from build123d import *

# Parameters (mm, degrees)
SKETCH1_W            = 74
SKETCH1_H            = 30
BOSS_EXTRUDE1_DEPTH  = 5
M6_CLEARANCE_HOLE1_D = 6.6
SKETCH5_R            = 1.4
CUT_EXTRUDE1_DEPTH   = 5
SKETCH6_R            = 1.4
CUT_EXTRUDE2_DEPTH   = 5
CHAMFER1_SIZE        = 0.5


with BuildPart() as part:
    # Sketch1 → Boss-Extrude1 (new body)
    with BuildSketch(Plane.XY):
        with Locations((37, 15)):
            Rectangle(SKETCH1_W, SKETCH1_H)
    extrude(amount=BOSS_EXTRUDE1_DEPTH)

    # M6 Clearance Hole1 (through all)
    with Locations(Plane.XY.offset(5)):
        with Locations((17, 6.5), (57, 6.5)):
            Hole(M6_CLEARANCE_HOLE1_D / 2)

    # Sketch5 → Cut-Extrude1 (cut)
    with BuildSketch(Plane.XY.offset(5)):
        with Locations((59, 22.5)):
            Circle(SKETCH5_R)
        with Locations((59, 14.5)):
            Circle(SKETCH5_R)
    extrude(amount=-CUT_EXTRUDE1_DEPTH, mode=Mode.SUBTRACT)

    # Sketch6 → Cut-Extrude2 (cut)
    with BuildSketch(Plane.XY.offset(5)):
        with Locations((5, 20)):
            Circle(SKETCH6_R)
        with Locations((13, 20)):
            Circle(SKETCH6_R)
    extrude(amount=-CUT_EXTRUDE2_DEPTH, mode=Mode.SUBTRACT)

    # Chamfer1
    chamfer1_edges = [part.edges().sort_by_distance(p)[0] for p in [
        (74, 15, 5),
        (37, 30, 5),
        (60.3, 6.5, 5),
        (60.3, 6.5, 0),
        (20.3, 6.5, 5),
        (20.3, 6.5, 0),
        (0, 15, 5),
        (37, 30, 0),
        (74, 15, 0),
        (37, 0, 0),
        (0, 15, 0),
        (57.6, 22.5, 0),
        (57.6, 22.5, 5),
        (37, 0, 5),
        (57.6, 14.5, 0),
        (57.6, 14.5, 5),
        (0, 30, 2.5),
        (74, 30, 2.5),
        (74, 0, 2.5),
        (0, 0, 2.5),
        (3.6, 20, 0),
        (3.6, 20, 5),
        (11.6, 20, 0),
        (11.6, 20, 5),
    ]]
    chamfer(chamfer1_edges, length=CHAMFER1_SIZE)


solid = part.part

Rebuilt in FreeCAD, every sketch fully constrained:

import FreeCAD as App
import Part
import Sketcher
from FreeCAD import Vector

doc = App.newDocument("Part")
body = doc.addObject("PartDesign::Body", "Body")

sketch1 = doc.addObject("Sketcher::SketchObject", "Sketch")
body.addObject(sketch1)
sketch1.AttachmentSupport = (doc.XY_Plane, [""])
sketch1.MapMode = "FlatFace"
sketch1.addGeometry([
    Part.LineSegment(Vector(0, 30, 0), Vector(0, 0, 0)),
    Part.LineSegment(Vector(0, 0, 0), Vector(74, 0, 0)),
    Part.LineSegment(Vector(74, 0, 0), Vector(74, 30, 0)),
    Part.LineSegment(Vector(74, 30, 0), Vector(0, 30, 0)),
], False)
sketch1.addConstraint([
    Sketcher.Constraint("Coincident", 0, 2, 1, 1),
    Sketcher.Constraint("Coincident", 1, 2, 2, 1),
    Sketcher.Constraint("Coincident", 2, 2, 3, 1),
    Sketcher.Constraint("Coincident", 3, 2, 0, 1),
    Sketcher.Constraint("Vertical", 0),
    Sketcher.Constraint("Horizontal", 1),
    Sketcher.Constraint("Vertical", 2),
    Sketcher.Constraint("Horizontal", 3),
    Sketcher.Constraint("Coincident", 0, 2, -1, 1),
    Sketcher.Constraint("DistanceX", 1, 1, 1, 2, 74.0),
    Sketcher.Constraint("DistanceY", 0, 2, 0, 1, 30.0),
])
pad1 = doc.addObject("PartDesign::Pad", "Pad")
body.addObject(pad1)
pad1.Profile = sketch1
pad1.Length = 5

sketch2 = doc.addObject("Sketcher::SketchObject", "Sketch001")
body.addObject(sketch2)
sketch2.AttachmentSupport = (doc.XY_Plane, [""])
sketch2.MapMode = "FlatFace"
sketch2.AttachmentOffset = App.Placement(Vector(0, 0, 5), App.Rotation())
sketch2.addGeometry([
    Part.Circle(Vector(17, 6.5, 0), Vector(0, 0, 1), 3.3),
    Part.Circle(Vector(57, 6.5, 0), Vector(0, 0, 1), 3.3),
], False)
sketch2.addConstraint([
    Sketcher.Constraint("Equal", 0, 1),
    Sketcher.Constraint("Horizontal", 0, 3, 1, 3),
    Sketcher.Constraint("Diameter", 0, 6.6),
    Sketcher.Constraint("DistanceX", -1, 1, 0, 3, 17.0),
    Sketcher.Constraint("DistanceX", -1, 1, 1, 3, 57.0),
    Sketcher.Constraint("DistanceY", -1, 1, 0, 3, 6.5),
])
doc.recompute()
hole = doc.addObject("PartDesign::Hole", "Hole")
body.addObject(hole)
hole.Profile = sketch2
hole.ThreadType = "None"
hole.Diameter = 6.6
hole.DepthType = "ThroughAll"

sketch3 = doc.addObject("Sketcher::SketchObject", "Sketch002")
body.addObject(sketch3)
sketch3.AttachmentSupport = (doc.XY_Plane, [""])
sketch3.MapMode = "FlatFace"
sketch3.AttachmentOffset = App.Placement(Vector(0, 0, 5), App.Rotation())
sketch3.addGeometry([
    Part.Circle(Vector(59, 22.5, 0), Vector(0, 0, 1), 1.4),
    Part.Circle(Vector(59, 14.5, 0), Vector(0, 0, 1), 1.4),
], False)
sketch3.addConstraint([
    Sketcher.Constraint("Equal", 0, 1),
    Sketcher.Constraint("Vertical", 0, 3, 1, 3),
    Sketcher.Constraint("Diameter", 0, 2.8),
    Sketcher.Constraint("DistanceX", -1, 1, 0, 3, 59.0),
    Sketcher.Constraint("DistanceY", 1, 3, 0, 3, 8.0),
    Sketcher.Constraint("DistanceY", -1, 1, 0, 3, 22.5),
])
pocket1 = doc.addObject("PartDesign::Pocket", "Pocket")
body.addObject(pocket1)
pocket1.Profile = sketch3
pocket1.Length = 5

sketch4 = doc.addObject("Sketcher::SketchObject", "Sketch003")
body.addObject(sketch4)
sketch4.AttachmentSupport = (doc.XY_Plane, [""])
sketch4.MapMode = "FlatFace"
sketch4.AttachmentOffset = App.Placement(Vector(0, 0, 5), App.Rotation())
sketch4.addGeometry([
    Part.Circle(Vector(5, 20, 0), Vector(0, 0, 1), 1.4),
    Part.Circle(Vector(13, 20, 0), Vector(0, 0, 1), 1.4),
], False)
sketch4.addConstraint([
    Sketcher.Constraint("Equal", 0, 1),
    Sketcher.Constraint("Horizontal", 0, 3, 1, 3),
    Sketcher.Constraint("Diameter", 0, 2.8),
    Sketcher.Constraint("DistanceX", -1, 1, 0, 3, 5.0),
    Sketcher.Constraint("DistanceY", -1, 1, 0, 3, 20.0),
    Sketcher.Constraint("DistanceX", -1, 1, 1, 3, 13.0),
])
pocket2 = doc.addObject("PartDesign::Pocket", "Pocket001")
body.addObject(pocket2)
pocket2.Profile = sketch4
pocket2.Length = 5
doc.recompute()

chamfer = doc.addObject("PartDesign::Chamfer", "Chamfer")
body.addObject(chamfer)
chamfer.Base = (pocket2, ["Edge1"])
chamfer.UseAllEdges = True
chamfer.Size = 0.5

doc.recompute()
